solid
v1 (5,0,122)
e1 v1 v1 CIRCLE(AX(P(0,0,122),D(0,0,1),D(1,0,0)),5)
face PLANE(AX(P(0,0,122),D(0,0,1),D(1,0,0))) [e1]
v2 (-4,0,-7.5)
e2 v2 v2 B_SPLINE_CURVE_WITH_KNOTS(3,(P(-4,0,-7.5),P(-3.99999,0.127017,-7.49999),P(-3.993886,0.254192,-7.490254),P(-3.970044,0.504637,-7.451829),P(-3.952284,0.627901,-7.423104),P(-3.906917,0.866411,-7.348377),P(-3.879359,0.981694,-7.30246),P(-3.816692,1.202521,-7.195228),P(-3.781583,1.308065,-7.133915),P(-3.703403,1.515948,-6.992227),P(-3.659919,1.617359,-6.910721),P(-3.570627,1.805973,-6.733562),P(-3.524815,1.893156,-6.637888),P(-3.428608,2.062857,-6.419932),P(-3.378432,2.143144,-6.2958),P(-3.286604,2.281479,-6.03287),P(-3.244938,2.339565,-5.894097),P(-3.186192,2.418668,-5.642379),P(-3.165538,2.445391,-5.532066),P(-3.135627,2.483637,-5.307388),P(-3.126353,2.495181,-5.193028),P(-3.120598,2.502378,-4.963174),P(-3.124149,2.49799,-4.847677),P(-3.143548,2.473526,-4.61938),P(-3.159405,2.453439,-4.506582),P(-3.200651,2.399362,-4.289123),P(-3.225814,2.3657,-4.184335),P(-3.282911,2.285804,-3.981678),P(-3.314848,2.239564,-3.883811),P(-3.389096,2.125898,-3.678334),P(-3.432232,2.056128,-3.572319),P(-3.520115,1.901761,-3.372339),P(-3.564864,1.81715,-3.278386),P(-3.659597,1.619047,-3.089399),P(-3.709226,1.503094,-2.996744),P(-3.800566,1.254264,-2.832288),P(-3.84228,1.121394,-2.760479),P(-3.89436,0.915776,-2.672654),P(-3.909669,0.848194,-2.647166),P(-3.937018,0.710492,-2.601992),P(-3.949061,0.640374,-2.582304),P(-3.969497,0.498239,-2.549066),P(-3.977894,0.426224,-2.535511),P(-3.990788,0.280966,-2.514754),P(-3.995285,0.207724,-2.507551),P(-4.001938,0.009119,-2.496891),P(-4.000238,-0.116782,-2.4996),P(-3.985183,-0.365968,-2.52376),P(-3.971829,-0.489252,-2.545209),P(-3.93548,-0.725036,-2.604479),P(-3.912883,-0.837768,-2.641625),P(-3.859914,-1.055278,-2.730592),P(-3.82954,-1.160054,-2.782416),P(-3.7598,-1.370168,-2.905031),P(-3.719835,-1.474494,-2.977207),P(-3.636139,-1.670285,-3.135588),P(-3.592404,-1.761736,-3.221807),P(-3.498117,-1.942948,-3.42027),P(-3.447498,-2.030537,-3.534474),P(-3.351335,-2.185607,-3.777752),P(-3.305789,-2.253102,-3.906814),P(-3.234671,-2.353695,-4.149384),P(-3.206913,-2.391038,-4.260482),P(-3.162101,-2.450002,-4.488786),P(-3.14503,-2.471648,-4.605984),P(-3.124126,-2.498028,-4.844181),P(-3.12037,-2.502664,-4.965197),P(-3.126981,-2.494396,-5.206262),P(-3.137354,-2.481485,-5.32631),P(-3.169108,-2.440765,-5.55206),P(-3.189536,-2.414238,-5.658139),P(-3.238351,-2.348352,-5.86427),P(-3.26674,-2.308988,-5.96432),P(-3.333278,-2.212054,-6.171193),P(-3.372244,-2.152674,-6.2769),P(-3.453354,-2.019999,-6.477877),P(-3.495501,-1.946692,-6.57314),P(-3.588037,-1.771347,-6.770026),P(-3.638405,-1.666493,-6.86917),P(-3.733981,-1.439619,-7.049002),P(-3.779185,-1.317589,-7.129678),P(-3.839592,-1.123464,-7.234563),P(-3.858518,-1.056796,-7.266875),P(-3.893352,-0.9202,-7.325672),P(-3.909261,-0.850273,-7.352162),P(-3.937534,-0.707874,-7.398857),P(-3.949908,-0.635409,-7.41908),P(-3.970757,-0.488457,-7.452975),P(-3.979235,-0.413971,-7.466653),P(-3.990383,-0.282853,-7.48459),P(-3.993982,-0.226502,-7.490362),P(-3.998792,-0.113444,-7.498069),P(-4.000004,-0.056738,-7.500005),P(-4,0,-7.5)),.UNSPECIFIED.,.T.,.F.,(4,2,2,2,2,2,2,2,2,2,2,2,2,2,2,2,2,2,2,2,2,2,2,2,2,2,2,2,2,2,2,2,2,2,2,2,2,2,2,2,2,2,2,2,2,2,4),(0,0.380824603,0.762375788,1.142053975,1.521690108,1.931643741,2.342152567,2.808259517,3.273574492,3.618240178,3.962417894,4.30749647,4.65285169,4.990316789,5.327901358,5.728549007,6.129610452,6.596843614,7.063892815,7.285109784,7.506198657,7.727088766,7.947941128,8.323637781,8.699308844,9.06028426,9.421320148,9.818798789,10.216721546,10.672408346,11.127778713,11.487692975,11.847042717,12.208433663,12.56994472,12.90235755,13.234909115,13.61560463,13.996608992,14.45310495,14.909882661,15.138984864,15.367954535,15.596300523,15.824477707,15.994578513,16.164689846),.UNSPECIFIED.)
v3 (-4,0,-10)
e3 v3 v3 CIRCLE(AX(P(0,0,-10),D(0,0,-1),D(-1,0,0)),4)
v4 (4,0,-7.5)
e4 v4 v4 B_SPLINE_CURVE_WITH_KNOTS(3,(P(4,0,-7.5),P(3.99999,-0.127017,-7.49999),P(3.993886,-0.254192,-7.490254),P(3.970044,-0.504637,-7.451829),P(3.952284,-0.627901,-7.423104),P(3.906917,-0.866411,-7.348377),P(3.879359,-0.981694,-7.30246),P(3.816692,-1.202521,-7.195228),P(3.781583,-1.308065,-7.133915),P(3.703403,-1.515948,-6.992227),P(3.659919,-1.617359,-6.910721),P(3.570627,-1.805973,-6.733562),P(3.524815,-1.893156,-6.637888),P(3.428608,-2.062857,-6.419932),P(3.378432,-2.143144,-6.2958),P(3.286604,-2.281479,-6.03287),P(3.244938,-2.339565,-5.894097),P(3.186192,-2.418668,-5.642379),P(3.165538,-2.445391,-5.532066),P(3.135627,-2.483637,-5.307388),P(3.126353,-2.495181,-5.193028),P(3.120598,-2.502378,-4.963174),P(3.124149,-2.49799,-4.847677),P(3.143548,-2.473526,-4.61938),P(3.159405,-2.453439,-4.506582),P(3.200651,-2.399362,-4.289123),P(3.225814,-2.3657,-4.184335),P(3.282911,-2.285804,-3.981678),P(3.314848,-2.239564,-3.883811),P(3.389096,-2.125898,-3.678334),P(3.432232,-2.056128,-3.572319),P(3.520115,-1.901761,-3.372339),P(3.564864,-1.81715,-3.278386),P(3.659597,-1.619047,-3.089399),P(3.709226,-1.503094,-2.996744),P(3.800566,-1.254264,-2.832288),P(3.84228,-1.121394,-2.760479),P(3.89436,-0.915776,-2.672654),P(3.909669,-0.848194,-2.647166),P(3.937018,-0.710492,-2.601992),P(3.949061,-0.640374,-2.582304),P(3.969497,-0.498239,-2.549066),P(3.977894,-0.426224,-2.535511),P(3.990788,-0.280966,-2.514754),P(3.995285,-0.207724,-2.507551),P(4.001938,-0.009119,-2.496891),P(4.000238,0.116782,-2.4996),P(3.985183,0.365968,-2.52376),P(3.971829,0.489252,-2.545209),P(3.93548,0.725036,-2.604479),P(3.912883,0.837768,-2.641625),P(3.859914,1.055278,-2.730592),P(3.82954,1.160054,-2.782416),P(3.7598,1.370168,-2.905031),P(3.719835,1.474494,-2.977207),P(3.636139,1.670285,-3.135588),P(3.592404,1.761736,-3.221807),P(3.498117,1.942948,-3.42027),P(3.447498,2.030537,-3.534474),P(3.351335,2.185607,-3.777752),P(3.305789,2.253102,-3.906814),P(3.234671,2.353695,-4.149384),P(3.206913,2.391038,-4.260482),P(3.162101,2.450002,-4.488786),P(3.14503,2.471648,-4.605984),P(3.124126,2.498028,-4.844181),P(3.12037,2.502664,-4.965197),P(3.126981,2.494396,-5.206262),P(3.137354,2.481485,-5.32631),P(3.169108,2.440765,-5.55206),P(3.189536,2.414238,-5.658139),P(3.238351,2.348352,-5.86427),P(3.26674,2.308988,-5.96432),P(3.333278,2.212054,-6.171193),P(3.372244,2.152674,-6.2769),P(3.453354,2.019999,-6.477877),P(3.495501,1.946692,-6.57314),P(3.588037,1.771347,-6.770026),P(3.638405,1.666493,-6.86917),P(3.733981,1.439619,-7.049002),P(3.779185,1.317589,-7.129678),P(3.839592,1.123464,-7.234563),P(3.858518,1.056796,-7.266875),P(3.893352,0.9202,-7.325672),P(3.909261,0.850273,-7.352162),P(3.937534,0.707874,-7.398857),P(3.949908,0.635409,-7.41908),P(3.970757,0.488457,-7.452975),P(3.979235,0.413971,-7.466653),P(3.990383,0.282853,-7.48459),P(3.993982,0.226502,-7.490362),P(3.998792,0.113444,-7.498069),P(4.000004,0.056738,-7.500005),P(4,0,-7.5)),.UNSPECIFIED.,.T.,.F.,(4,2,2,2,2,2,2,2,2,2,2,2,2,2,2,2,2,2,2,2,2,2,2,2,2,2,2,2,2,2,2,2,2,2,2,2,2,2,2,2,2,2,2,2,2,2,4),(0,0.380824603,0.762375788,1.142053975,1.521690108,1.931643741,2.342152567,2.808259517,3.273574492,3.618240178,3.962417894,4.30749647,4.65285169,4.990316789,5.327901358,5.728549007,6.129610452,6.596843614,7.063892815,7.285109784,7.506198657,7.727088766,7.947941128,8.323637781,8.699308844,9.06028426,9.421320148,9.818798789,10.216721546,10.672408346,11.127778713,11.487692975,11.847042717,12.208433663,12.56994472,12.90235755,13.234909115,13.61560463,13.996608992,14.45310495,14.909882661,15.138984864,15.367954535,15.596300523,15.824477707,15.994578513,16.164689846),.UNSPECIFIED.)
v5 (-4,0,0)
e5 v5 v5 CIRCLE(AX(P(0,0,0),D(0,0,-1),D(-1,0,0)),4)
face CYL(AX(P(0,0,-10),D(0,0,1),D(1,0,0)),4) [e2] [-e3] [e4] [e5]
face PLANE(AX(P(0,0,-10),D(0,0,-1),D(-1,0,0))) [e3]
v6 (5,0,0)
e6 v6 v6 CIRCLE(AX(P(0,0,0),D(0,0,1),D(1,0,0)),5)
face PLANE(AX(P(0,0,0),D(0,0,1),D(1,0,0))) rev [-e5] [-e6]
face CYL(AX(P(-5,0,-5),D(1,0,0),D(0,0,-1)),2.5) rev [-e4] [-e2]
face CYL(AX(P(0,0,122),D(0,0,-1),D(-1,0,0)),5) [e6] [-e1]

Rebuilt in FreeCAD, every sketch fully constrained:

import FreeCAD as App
import Part
import Sketcher
from FreeCAD import Vector

doc = App.newDocument("Part")
body = doc.addObject("PartDesign::Body", "Body")

sketch1 = body.newObject("Sketcher::SketchObject", "Sketch")
sketch1.AttachmentSupport = (doc.getObject("XY_Plane"), [""])
sketch1.MapMode = "FlatFace"
sketch1.addGeometry(Part.Circle(Vector(0, 0, 0), Vector(0, 0, 1), 5), False)
sketch1.addConstraint(Sketcher.Constraint("Coincident", 0, 3, -1, 1))
sketch1.addConstraint(Sketcher.Constraint("Diameter", 0, 10.0))
pad1 = body.newObject("PartDesign::Pad", "Pad")
pad1.Profile = sketch1
pad1.Length = 122

sketch2 = body.newObject("Sketcher::SketchObject", "Sketch001")
sketch2.AttachmentSupport = (doc.getObject("XY_Plane"), [""])
sketch2.MapMode = "FlatFace"
sketch2.addGeometry(Part.Circle(Vector(0, 0, 0), Vector(0, 0, 1), 4), False)
sketch2.addConstraint(Sketcher.Constraint("Coincident", 0, 3, -1, 1))
sketch2.addConstraint(Sketcher.Constraint("Diameter", 0, 8.0))
pad2 = body.newObject("PartDesign::Pad", "Pad001")
pad2.Profile = sketch2
pad2.Length = 10
pad2.Reversed = True

sketch3 = body.newObject("Sketcher::SketchObject", "Sketch002")
sketch3.AttachmentSupport = (doc.getObject("YZ_Plane"), [""])
sketch3.MapMode = "FlatFace"
sketch3.addGeometry(Part.Circle(Vector(0, -5, 0), Vector(0, 0, 1), 2.5), False)
sketch3.addConstraint(Sketcher.Constraint("PointOnObject", 0, 3, -2))
sketch3.addConstraint(Sketcher.Constraint("Diameter", 0, 5.0))
sketch3.addConstraint(Sketcher.Constraint("DistanceY", 0, 3, -1, 1, 5.0))
pocket1 = body.newObject("PartDesign::Pocket", "Pocket")
pocket1.Profile = sketch3
pocket1.Type = "ThroughAll"
pocket1.Midplane = True

doc.recompute()
